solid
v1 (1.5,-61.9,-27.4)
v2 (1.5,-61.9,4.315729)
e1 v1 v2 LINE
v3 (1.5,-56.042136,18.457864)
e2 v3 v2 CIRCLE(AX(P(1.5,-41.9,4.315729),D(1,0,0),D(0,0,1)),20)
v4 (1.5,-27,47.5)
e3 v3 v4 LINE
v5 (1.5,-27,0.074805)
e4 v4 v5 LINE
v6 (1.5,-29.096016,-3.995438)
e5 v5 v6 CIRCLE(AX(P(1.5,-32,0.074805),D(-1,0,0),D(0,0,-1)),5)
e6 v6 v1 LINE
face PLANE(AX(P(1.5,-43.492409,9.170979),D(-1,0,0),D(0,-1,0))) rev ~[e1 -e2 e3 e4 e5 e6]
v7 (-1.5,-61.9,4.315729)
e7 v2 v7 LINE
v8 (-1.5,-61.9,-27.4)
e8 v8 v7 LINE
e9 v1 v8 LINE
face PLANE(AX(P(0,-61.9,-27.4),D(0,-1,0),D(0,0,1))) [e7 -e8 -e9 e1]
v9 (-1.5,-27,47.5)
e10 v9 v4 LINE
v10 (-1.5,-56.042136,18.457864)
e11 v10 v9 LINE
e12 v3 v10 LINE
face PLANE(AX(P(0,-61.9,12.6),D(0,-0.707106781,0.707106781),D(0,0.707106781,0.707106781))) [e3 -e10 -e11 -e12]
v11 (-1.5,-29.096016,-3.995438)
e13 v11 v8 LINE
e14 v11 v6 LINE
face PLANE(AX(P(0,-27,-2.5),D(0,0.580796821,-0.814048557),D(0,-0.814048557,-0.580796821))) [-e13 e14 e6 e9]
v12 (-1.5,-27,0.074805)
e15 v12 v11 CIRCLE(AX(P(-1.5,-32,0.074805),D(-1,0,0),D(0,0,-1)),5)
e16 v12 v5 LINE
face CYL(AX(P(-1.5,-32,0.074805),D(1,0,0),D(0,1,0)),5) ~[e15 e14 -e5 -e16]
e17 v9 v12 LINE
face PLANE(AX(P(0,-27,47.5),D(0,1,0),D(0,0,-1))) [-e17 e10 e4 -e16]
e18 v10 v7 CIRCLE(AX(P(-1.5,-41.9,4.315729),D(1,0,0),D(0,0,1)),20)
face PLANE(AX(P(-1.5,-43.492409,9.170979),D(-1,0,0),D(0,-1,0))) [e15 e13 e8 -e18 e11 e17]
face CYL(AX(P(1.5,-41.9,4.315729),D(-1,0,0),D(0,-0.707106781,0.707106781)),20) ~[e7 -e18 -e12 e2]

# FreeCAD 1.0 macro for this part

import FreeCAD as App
import Part
import Sketcher
Q = App.Units.Quantity


def edges_at(feature, points):
    """Names of the edges that pass closest to the given points."""
    edges = feature.Shape.Edges
    near = lambda p: min(range(len(edges)), key=lambda i: edges[i].distToShape(Part.Vertex(*p))[0])
    return sorted({f"Edge{near(p) + 1}" for p in points})


def add_polygon(sketch, points):
    """Adds a closed chain of lines whose ends are joined by coincident constraints."""
    first, n = sketch.GeometryCount, len(points)
    for a, b in zip(points, points[1:] + points[:1]):
        sketch.addGeometry(Part.LineSegment(App.Vector(*a, 0), App.Vector(*b, 0)), False)
    for i in range(n):
        sketch.addConstraint(Sketcher.Constraint("Coincident", first + i, 2, first + (i + 1) % n, 1))

doc = App.newDocument("Part")
body = doc.addObject("PartDesign::Body", "Body")

# Sketch on YZ plane
sketch1 = body.newObject("Sketcher::SketchObject", "Sketch")
sketch1.AttachmentSupport = (doc.getObject("YZ_Plane"), [""])
sketch1.MapMode = "FlatFace"
add_polygon(sketch1, [(27, -2), (62, -27), (62, 13), (27, 48)])  # lines 0-3
sketch1.addConstraint([
    Sketcher.Constraint("Vertical", 1),
    Sketcher.Constraint("Vertical", 3),
    Sketcher.Constraint("DistanceY", 1, 1, 1, 2, Q("40 mm")),
    Sketcher.Constraint("DistanceY", 3, 2, 3, 1, Q("50 mm")),
    Sketcher.Constraint("Angle", 2, Q("135 deg")),
    Sketcher.Constraint("DistanceX", -1, 1, 2, 2, Q("27 mm")),
    Sketcher.Constraint("DistanceX", -1, 1, 0, 2, Q("61.9 mm")),
    Sketcher.Constraint("DistanceY", 0, 2, -1, 1, Q("27.4 mm")),
])
pad1 = body.newObject("PartDesign::Pad", "Pad")
pad1.Profile = sketch1
pad1.Length = 3
pad1.Midplane = True
doc.recompute()

fillet = body.newObject("PartDesign::Fillet", "Fillet")
fillet.Base = (pad1, edges_at(pad1, [(0, 61.9, 12.6)]))
fillet.Radius = 20
doc.recompute()

fillet2 = body.newObject("PartDesign::Fillet", "Fillet001")
fillet2.Base = (fillet, edges_at(fillet, [(0, 27, -2.5)]))
fillet2.Radius = 5
body2 = doc.addObject("PartDesign::Body", "Body001")
doc.recompute()

body.Placement = App.Placement(App.Vector(0, 0, 0), App.Rotation(App.Vector(0, 0, 1), 180))
boolean = body2.newObject("PartDesign::Boolean", "Boolean")
boolean.Type = "Fuse"
boolean.addObjects([body])

doc.recompute()
